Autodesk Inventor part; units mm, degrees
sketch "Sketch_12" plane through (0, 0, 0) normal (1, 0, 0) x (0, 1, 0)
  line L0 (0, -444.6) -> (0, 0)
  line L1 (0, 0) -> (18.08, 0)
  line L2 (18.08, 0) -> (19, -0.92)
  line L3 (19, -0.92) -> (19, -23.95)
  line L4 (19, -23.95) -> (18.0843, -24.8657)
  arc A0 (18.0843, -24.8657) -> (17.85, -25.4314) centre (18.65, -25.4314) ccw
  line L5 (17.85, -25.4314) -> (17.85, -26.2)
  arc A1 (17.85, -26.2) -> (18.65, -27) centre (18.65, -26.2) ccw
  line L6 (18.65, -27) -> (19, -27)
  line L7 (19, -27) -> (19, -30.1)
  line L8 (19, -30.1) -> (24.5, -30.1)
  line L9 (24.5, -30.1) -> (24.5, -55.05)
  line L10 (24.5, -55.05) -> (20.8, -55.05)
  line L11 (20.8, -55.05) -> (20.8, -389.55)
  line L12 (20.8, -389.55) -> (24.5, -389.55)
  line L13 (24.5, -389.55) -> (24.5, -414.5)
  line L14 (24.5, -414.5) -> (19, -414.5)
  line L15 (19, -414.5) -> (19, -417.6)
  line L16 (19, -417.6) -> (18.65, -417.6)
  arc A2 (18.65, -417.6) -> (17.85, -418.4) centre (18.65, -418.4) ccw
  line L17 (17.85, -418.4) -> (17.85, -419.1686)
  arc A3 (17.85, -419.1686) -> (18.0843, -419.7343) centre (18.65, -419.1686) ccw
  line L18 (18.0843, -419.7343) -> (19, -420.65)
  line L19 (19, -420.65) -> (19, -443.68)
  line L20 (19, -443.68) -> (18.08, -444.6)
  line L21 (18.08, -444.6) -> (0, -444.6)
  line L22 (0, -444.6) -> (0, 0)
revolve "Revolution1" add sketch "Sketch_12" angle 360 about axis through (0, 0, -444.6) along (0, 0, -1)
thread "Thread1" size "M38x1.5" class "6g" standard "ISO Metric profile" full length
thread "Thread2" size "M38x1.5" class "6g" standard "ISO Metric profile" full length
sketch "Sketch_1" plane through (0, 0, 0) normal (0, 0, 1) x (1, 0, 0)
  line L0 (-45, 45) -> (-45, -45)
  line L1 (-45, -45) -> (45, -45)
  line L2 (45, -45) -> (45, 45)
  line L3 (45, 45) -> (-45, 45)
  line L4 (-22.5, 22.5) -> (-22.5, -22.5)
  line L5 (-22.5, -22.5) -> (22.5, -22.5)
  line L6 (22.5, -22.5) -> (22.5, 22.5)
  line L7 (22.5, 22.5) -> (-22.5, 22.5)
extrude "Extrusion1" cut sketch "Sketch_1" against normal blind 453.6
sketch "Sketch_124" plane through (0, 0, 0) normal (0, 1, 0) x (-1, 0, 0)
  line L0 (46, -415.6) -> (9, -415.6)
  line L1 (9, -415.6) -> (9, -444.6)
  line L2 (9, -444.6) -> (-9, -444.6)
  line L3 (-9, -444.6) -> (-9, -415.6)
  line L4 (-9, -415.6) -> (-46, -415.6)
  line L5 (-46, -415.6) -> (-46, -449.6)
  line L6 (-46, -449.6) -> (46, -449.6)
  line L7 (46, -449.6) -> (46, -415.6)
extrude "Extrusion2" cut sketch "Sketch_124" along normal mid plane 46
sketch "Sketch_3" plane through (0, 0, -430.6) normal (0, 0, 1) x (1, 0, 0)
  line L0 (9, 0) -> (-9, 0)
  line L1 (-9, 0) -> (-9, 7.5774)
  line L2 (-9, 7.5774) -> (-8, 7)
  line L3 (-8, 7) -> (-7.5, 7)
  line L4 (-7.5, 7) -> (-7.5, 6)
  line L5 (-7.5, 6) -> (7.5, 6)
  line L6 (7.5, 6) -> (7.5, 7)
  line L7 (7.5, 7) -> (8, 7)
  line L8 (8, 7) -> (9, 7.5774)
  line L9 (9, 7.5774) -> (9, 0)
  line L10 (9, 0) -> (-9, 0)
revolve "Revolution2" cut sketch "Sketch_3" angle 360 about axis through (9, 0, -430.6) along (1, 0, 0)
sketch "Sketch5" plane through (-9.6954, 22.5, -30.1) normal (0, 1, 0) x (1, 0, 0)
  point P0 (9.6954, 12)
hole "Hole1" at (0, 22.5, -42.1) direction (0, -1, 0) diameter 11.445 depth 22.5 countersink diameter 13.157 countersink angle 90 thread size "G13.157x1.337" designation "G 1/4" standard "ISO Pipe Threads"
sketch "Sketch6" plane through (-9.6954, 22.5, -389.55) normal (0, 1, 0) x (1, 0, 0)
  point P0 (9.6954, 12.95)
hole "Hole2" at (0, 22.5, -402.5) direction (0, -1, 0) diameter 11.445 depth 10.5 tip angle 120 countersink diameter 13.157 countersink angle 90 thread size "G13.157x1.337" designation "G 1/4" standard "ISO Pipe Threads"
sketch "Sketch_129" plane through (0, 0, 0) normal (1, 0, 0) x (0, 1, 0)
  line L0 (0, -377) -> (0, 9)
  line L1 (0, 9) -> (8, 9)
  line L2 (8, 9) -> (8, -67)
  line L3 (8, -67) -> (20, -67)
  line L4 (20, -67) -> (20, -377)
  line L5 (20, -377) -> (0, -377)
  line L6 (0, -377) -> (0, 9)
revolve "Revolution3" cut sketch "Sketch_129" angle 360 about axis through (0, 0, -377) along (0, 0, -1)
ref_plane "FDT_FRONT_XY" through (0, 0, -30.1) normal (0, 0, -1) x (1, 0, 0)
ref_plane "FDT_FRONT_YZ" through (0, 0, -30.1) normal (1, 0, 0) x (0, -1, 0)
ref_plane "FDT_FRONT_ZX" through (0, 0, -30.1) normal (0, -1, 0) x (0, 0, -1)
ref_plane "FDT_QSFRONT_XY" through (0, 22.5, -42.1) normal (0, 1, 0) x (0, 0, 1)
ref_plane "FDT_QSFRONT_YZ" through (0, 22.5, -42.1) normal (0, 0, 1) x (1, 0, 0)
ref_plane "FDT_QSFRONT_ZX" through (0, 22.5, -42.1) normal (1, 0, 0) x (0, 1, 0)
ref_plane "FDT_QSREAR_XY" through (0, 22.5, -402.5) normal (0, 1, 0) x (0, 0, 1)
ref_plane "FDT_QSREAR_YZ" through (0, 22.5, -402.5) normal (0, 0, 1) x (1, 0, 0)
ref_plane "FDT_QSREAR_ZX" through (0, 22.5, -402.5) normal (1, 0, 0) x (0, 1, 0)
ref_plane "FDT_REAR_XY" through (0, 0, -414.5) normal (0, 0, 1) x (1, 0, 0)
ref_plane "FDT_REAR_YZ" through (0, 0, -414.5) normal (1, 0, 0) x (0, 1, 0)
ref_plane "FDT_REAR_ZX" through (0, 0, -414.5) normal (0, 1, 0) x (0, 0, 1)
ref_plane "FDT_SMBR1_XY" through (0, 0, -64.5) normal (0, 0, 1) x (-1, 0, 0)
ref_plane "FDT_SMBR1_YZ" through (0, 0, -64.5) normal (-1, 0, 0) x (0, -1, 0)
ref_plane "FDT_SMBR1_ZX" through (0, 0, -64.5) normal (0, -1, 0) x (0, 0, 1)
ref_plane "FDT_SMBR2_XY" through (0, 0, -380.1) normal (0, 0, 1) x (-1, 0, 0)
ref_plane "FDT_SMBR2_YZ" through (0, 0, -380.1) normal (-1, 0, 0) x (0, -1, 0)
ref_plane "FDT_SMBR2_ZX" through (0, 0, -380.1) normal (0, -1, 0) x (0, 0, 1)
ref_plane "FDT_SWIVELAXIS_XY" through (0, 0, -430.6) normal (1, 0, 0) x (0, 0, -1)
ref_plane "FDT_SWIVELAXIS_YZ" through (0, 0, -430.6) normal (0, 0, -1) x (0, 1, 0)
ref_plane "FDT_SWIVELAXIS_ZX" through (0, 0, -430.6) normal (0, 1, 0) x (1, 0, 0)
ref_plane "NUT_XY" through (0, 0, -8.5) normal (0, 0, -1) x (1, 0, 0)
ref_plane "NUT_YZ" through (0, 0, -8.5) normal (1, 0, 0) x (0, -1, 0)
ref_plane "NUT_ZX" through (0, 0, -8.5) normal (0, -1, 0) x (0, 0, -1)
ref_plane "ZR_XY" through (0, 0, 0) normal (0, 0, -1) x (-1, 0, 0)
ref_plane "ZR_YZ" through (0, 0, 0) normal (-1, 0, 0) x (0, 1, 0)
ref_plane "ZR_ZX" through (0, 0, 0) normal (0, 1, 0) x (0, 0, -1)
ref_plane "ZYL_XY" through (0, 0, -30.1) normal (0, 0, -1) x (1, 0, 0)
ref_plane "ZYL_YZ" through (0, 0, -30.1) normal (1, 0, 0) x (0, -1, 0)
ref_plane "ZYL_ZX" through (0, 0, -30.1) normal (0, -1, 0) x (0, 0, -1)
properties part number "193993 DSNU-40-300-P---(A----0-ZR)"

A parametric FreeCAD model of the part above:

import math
import FreeCAD as App
import Part
import Sketcher

V = App.Vector


def add_polygon(sketch, points):
    """Adds a closed chain of lines whose ends are joined by coincident constraints."""
    first, n = sketch.GeometryCount, len(points)
    for a, b in zip(points, points[1:] + points[:1]):
        sketch.addGeometry(Part.LineSegment(App.Vector(*a, 0), App.Vector(*b, 0)), False)
    for i in range(n):
        sketch.addConstraint(Sketcher.Constraint("Coincident", first + i, 2, first + (i + 1) % n, 1))

doc = App.newDocument("Part")
params = doc.addObject("Spreadsheet::Sheet", "Params")
for row, (alias, value) in enumerate([
    ("sketch1_radius", "0.8 mm"),
    ("sketch1_width", "5.5 mm"),
    ("sketch1_width2", "3.7 mm"),
    ("sketch1_height", "444.6 mm"),
    ("sketch1_height2", "3.1 mm"),
    ("revolution_angle", "360 deg"),
    ("sketch2_width", "90 mm"),
    ("sketch2_width2", "45 mm"),
    ("pocket1_length", "453.6 mm"),
    ("sketch3_width", "37 mm"),
    ("sketch3_width2", "18 mm"),
    ("sketch3_height", "34 mm"),
    ("sketch3_height2", "29 mm"),
    ("pocket2_length", "46 mm"),
    ("sketch4_width", "18 mm"),
    ("sketch4_width2", "15 mm"),
    ("sketch4_height", "1 mm"),
    ("sketch4_width3", "0.5 mm"),
    ("groove_angle", "360 deg"),
    ("hole_diameter", "11.445 mm"),
    ("hole_depth", "22.5 mm"),
    ("hole_csink_diameter", "13.157 mm"),
    ("hole2_diameter", "11.445 mm"),
    ("hole2_depth", "10.5 mm"),
    ("hole2_csink_diameter", "13.157 mm"),
    ("sketch7_width", "20 mm"),
    ("sketch7_width2", "12 mm"),
    ("sketch7_height", "386 mm"),
    ("sketch7_height2", "310 mm"),
    ("groove2_angle", "360 deg"),
], start=1):
    params.set(f"A{row}", alias)
    params.set(f"B{row}", "=" + value)
    params.setAlias(f"B{row}", alias)

body = doc.addObject("PartDesign::Body", "Body")

sketch1 = body.newObject("Sketcher::SketchObject", "Sketch")
sketch1.AttachmentSupport = (doc.getObject("YZ_Plane"), [""])
sketch1.MapMode = "FlatFace"
sketch1.addGeometry([
    Part.LineSegment(V(0, 0, 0), V(0, -444.6, 0)),
    Part.LineSegment(V(0, -444.6, 0), V(18.08, -444.6, 0)),
    Part.LineSegment(V(18.08, -444.6, 0), V(19, -443.68, 0)),
    Part.LineSegment(V(19, -443.68, 0), V(19, -420.65, 0)),
    Part.LineSegment(V(19, -420.65, 0), V(18.08, -419.73, 0)),
    Part.ArcOfCircle(Part.Circle(V(18.65, -419.17, 0), V(0, 0, 1), 0.8), math.radians(180), math.radians(225)),
    Part.LineSegment(V(17.85, -419.17, 0), V(17.85, -418.4, 0)),
    Part.ArcOfCircle(Part.Circle(V(18.65, -418.4, 0), V(0, 0, 1), 0.8), math.radians(90), math.radians(180)),
    Part.LineSegment(V(18.65, -417.6, 0), V(19, -417.6, 0)),
    Part.LineSegment(V(19, -417.6, 0), V(19, -414.5, 0)),
    Part.LineSegment(V(19, -414.5, 0), V(24.5, -414.5, 0)),
    Part.LineSegment(V(24.5, -414.5, 0), V(24.5, -389.55, 0)),
    Part.LineSegment(V(24.5, -389.55, 0), V(20.8, -389.55, 0)),
    Part.LineSegment(V(20.8, -389.55, 0), V(20.8, -55.05, 0)),
    Part.LineSegment(V(20.8, -55.05, 0), V(24.5, -55.05, 0)),
    Part.LineSegment(V(24.5, -55.05, 0), V(24.5, -30.1, 0)),
    Part.LineSegment(V(24.5, -30.1, 0), V(19, -30.1, 0)),
    Part.LineSegment(V(19, -30.1, 0), V(19, -27, 0)),
    Part.LineSegment(V(19, -27, 0), V(18.65, -27, 0)),
    Part.ArcOfCircle(Part.Circle(V(18.65, -26.2, 0), V(0, 0, 1), 0.8), math.radians(180), math.radians(270)),
    Part.LineSegment(V(17.85, -26.2, 0), V(17.85, -25.43, 0)),
    Part.ArcOfCircle(Part.Circle(V(18.65, -25.43, 0), V(0, 0, 1), 0.8), math.radians(135), math.radians(180)),
    Part.LineSegment(V(18.08, -24.87, 0), V(19, -23.95, 0)),
    Part.LineSegment(V(19, -23.95, 0), V(19, -0.92, 0)),
    Part.LineSegment(V(19, -0.92, 0), V(18.08, 0, 0)),
    Part.LineSegment(V(18.08, 0, 0), V(0, 0, 0)),
], False)
sketch1.addConstraint([
    Sketcher.Constraint("Coincident", 0, 2, 1, 1),
    Sketcher.Constraint("Coincident", 1, 2, 2, 1),
    Sketcher.Constraint("Coincident", 2, 2, 3, 1),
    Sketcher.Constraint("Coincident", 3, 2, 4, 1),
    Sketcher.Constraint("Tangent", 4, 2, 5, 2),
    Sketcher.Constraint("Tangent", 5, 1, 6, 1),
    Sketcher.Constraint("Tangent", 6, 2, 7, 2),
    Sketcher.Constraint("Tangent", 7, 1, 8, 1),
    Sketcher.Constraint("Coincident", 8, 2, 9, 1),
    Sketcher.Constraint("Coincident", 9, 2, 10, 1),
    Sketcher.Constraint("Coincident", 10, 2, 11, 1),
    Sketcher.Constraint("Coincident", 11, 2, 12, 1),
    Sketcher.Constraint("Coincident", 12, 2, 13, 1),
    Sketcher.Constraint("Coincident", 13, 2, 14, 1),
    Sketcher.Constraint("Coincident", 14, 2, 15, 1),
    Sketcher.Constraint("Coincident", 15, 2, 16, 1),
    Sketcher.Constraint("Coincident", 16, 2, 17, 1),
    Sketcher.Constraint("Coincident", 17, 2, 18, 1),
    Sketcher.Constraint("Tangent", 18, 2, 19, 2),
    Sketcher.Constraint("Tangent", 19, 1, 20, 1),
    Sketcher.Constraint("Tangent", 20, 2, 21, 2),
    Sketcher.Constraint("Tangent", 21, 1, 22, 1),
    Sketcher.Constraint("Coincident", 22, 2, 23, 1),
    Sketcher.Constraint("Coincident", 23, 2, 24, 1),
    Sketcher.Constraint("Coincident", 24, 2, 25, 1),
    Sketcher.Constraint("Coincident", 25, 2, 0, 1),
    Sketcher.Constraint("Vertical", 0),
    Sketcher.Constraint("Horizontal", 1),
    Sketcher.Constraint("Vertical", 3),
    Sketcher.Constraint("Vertical", 6),
    Sketcher.Constraint("Horizontal", 8),
    Sketcher.Constraint("Vertical", 9),
    Sketcher.Constraint("Horizontal", 10),
    Sketcher.Constraint("Vertical", 11),
    Sketcher.Constraint("Horizontal", 12),
    Sketcher.Constraint("Vertical", 13),
    Sketcher.Constraint("Horizontal", 14),
    Sketcher.Constraint("Vertical", 15),
    Sketcher.Constraint("Horizontal", 16),
    Sketcher.Constraint("Vertical", 17),
    Sketcher.Constraint("Horizontal", 18),
    Sketcher.Constraint("Vertical", 20),
    Sketcher.Constraint("Vertical", 23),
    Sketcher.Constraint("Horizontal", 25),
    Sketcher.Constraint("Coincident", 25, 2, -1, 1),
    Sketcher.Constraint("Equal", 5, 7),
    Sketcher.Constraint("Equal", 7, 19),
    Sketcher.Constraint("Equal", 19, 21),
    Sketcher.Constraint("Perpendicular", 2, 4),
    Sketcher.Constraint("Perpendicular", 4, 22),
    Sketcher.Constraint("Perpendicular", 22, 24),
    Sketcher.Constraint("Vertical", 7, 3, 19, 3),
    Sketcher.Constraint("Vertical", 3, 2, 8, 2),
    Sketcher.Constraint("Vertical", 11, 2, 14, 2),
    Sketcher.Constraint("Vertical", 9, 2, 16, 2),
    Sketcher.Constraint("Vertical", 4, 2, 21, 1),
    Sketcher.Constraint("Vertical", 17, 2, 22, 2),
    Sketcher.Constraint("Vertical", 1, 2, 24, 2),
    Sketcher.Constraint("Equal", 11, 15),
    Sketcher.Constraint("Equal", 9, 17),
    Sketcher.Constraint("Equal", 6, 20),
    Sketcher.Constraint("Equal", 3, 23),
    Sketcher.Constraint("Radius", 5, 0.8),
    Sketcher.Constraint("DistanceX", 10, 1, 10, 2, 5.5),
    Sketcher.Constraint("DistanceX", 12, 2, 12, 1, 3.7),
    Sketcher.Constraint("DistanceY", 0, 2, 0, 1, 444.6),
    Sketcher.Constraint("DistanceY", 9, 1, 9, 2, 3.1),
    Sketcher.Constraint("DistanceY", 13, 1, 13, 2, 334.5),
    Sketcher.Constraint("DistanceX", -1, 1, 2, 2, 19.0),
    Sketcher.Constraint("DistanceY", 17, 2, -1, 1, 27.0),
    Sketcher.Constraint("DistanceX", 1, 1, 1, 2, 18.08),
    Sketcher.Constraint("DistanceX", 8, 1, 8, 2, 0.35),
    Sketcher.Constraint("DistanceY", 3, 1, 3, 2, 23.03),
])
sketch1.setExpression("Constraints[62]", "Params.sketch1_radius")
sketch1.setExpression("Constraints[63]", "Params.sketch1_width")
sketch1.setExpression("Constraints[64]", "Params.sketch1_width2")
sketch1.setExpression("Constraints[65]", "Params.sketch1_height")
sketch1.setExpression("Constraints[66]", "Params.sketch1_height2")
revolution = body.newObject("PartDesign::Revolution", "Revolution")
revolution.Profile = sketch1
revolution.ReferenceAxis = (sketch1, ["V_Axis"])
revolution.setExpression("Angle", "Params.revolution_angle")

sketch2 = body.newObject("Sketcher::SketchObject", "Sketch001")
sketch2.AttachmentSupport = (doc.getObject("XY_Plane"), [""])
sketch2.MapMode = "FlatFace"
add_polygon(sketch2, [(45, 45), (-45, 45), (-45, -45), (45, -45)])
add_polygon(sketch2, [(-22, -22), (-22, 22), (22, 22), (22, -22)])
sketch2.addConstraint([
    Sketcher.Constraint("Horizontal", 0),
    Sketcher.Constraint("Vertical", 1),
    Sketcher.Constraint("Horizontal", 2),
    Sketcher.Constraint("Vertical", 3),
    Sketcher.Constraint("Vertical", 4),
    Sketcher.Constraint("Horizontal", 5),
    Sketcher.Constraint("Vertical", 6),
    Sketcher.Constraint("Horizontal", 7),
    Sketcher.Constraint("Symmetric", 0, 2, 2, 2, -1, 1),
    Sketcher.Constraint("Symmetric", 4, 2, 6, 2, -1, 1),
    Sketcher.Constraint("Equal", 2, 1),
    Sketcher.Constraint("Equal", 7, 4),
    Sketcher.Constraint("DistanceX", 0, 2, 0, 1, 90.0),
    Sketcher.Constraint("DistanceX", 5, 1, 5, 2, 45.0),
])
sketch2.setExpression("Constraints[20]", "Params.sketch2_width")
sketch2.setExpression("Constraints[21]", "Params.sketch2_width2")
pocket1 = body.newObject("PartDesign::Pocket", "Pocket")
pocket1.Profile = sketch2
pocket1.setExpression("Length", "Params.pocket1_length")

sketch3 = body.newObject("Sketcher::SketchObject", "Sketch002")
sketch3.AttachmentSupport = (doc.getObject("XZ_Plane"), [""])
sketch3.MapMode = "FlatFace"
add_polygon(sketch3, [(-46, -450), (-46, -416), (-9, -416), (-9, -445), (9, -445), (9, -416), (46, -416), (46, -450)])
sketch3.addConstraint([
    Sketcher.Constraint("Vertical", 0),
    Sketcher.Constraint("Horizontal", 1),
    Sketcher.Constraint("Vertical", 2),
    Sketcher.Constraint("Horizontal", 3),
    Sketcher.Constraint("Vertical", 4),
    Sketcher.Constraint("Horizontal", 5),
    Sketcher.Constraint("Vertical", 6),
    Sketcher.Constraint("Horizontal", 7),
    Sketcher.Constraint("Symmetric", 1, 2, 4, 2, -2),
    Sketcher.Constraint("Equal", 1, 5),
    Sketcher.Constraint("DistanceX", 1, 1, 1, 2, 37.0),
    Sketcher.Constraint("DistanceX", 3, 1, 3, 2, 18.0),
    Sketcher.Constraint("DistanceY", 0, 1, 0, 2, 34.0),
    Sketcher.Constraint("DistanceY", 2, 2, 2, 1, 29.0),
    Sketcher.Constraint("DistanceY", 0, 2, -1, 1, 415.6),
])
sketch3.setExpression("Constraints[18]", "Params.sketch3_width")
sketch3.setExpression("Constraints[19]", "Params.sketch3_width2")
sketch3.setExpression("Constraints[20]", "Params.sketch3_height")
sketch3.setExpression("Constraints[21]", "Params.sketch3_height2")
pocket2 = body.newObject("PartDesign::Pocket", "Pocket001")
pocket2.Profile = sketch3
pocket2.setExpression("Length", "Params.pocket2_length")
pocket2.Midplane = True

sketch4 = body.newObject("Sketcher::SketchObject", "Sketch003")
sketch4.AttachmentSupport = (doc.getObject("XY_Plane"), [""])
sketch4.MapMode = "FlatFace"
sketch4.AttachmentOffset = App.Placement(V(0, 0, -430.6), App.Rotation())
add_polygon(sketch4, [(-9, 0), (9, 0), (9, 7.6), (8, 7), (7.5, 7), (7.5, 6), (-7.5, 6), (-7.5, 7), (-8, 7), (-9, 7.6)])
sketch4.addConstraint([
    Sketcher.Constraint("Horizontal", 0),
    Sketcher.Constraint("Vertical", 1),
    Sketcher.Constraint("Horizontal", 3),
    Sketcher.Constraint("Vertical", 4),
    Sketcher.Constraint("Horizontal", 5),
    Sketcher.Constraint("Vertical", 6),
    Sketcher.Constraint("Horizontal", 7),
    Sketcher.Constraint("Vertical", 9),
    Sketcher.Constraint("Symmetric", 0, 2, 9, 2, -1, 1),
    Sketcher.Constraint("Symmetric", 3, 2, 6, 2, -2),
    Sketcher.Constraint("Horizontal", 1, 2, 8, 2),
    Sketcher.Constraint("Equal", 3, 7),
    Sketcher.Constraint("DistanceX", 0, 1, 0, 2, 18.0),
    Sketcher.Constraint("DistanceX", 5, 2, 5, 1, 15.0),
    Sketcher.Constraint("DistanceY", 4, 2, 4, 1, 1.0),
    Sketcher.Constraint("DistanceX", 3, 2, 3, 1, 0.5),
    Sketcher.Constraint("DistanceY", -1, 1, 2, 2, 7.0),
    Sketcher.Constraint("DistanceY", 1, 1, 1, 2, 7.5774),
])
sketch4.setExpression("Constraints[22]", "Params.sketch4_width")
sketch4.setExpression("Constraints[23]", "Params.sketch4_width2")
sketch4.setExpression("Constraints[24]", "Params.sketch4_height")
sketch4.setExpression("Constraints[25]", "Params.sketch4_width3")
groove = body.newObject("PartDesign::Groove", "Groove")
groove.Profile = sketch4
groove.ReferenceAxis = (sketch4, ["H_Axis"])
groove.setExpression("Angle", "Params.groove_angle")

sketch5 = body.newObject("Sketcher::SketchObject", "Sketch004")
sketch5.AttachmentSupport = (doc.getObject("XZ_Plane"), [""])
sketch5.MapMode = "FlatFace"
sketch5.AttachmentOffset = App.Placement(V(0, 0, -22.5), App.Rotation())
sketch5.addGeometry(Part.Circle(V(0, -42, 0), V(0, 0, 1), 6), False)
sketch5.addConstraint([
    Sketcher.Constraint("PointOnObject", 0, 3, -2),
    Sketcher.Constraint("Diameter", 0, 11.445),
    Sketcher.Constraint("DistanceY", 0, 3, -1, 1, 42.1),
])
doc.recompute()
hole = body.newObject("PartDesign::Hole", "Hole")
hole.Profile = sketch5
hole.ThreadType = "None"
hole.setExpression("Diameter", "Params.hole_diameter")
hole.DepthType = "Dimension"
hole.setExpression("Depth", "Params.hole_depth")
hole.DrillPoint = "Flat"
hole.HoleCutType = "Countersink"
hole.setExpression("HoleCutDiameter", "Params.hole_csink_diameter")
hole.HoleCutCountersinkAngle = 90
hole.Reversed = True

sketch6 = body.newObject("Sketcher::SketchObject", "Sketch005")
sketch6.AttachmentSupport = (doc.getObject("XZ_Plane"), [""])
sketch6.MapMode = "FlatFace"
sketch6.AttachmentOffset = App.Placement(V(0, 0, -22.5), App.Rotation())
sketch6.addGeometry(Part.Circle(V(0, -402, 0), V(0, 0, 1), 6), False)
sketch6.addConstraint([
    Sketcher.Constraint("PointOnObject", 0, 3, -2),
    Sketcher.Constraint("Diameter", 0, 11.445),
    Sketcher.Constraint("DistanceY", 0, 3, -1, 1, 402.5),
])
doc.recompute()
hole2 = body.newObject("PartDesign::Hole", "Hole001")
hole2.Profile = sketch6
hole2.ThreadType = "None"
hole2.setExpression("Diameter", "Params.hole2_diameter")
hole2.DepthType = "Dimension"
hole2.setExpression("Depth", "Params.hole2_depth")
hole2.DrillPoint = "Angled"
hole2.DrillPointAngle = 120
hole2.HoleCutType = "Countersink"
hole2.setExpression("HoleCutDiameter", "Params.hole2_csink_diameter")
hole2.HoleCutCountersinkAngle = 90
hole2.Reversed = True

sketch7 = body.newObject("Sketcher::SketchObject", "Sketch006")
sketch7.AttachmentSupport = (doc.getObject("YZ_Plane"), [""])
sketch7.MapMode = "FlatFace"
add_polygon(sketch7, [(0, 9), (0, -377), (20, -377), (20, -67), (8, -67), (8, 9)])
sketch7.addConstraint([
    Sketcher.Constraint("Vertical", 0),
    Sketcher.Constraint("Horizontal", 1),
    Sketcher.Constraint("Vertical", 2),
    Sketcher.Constraint("Horizontal", 3),
    Sketcher.Constraint("Vertical", 4),
    Sketcher.Constraint("Horizontal", 5),
    Sketcher.Constraint("PointOnObject", 0, 2, -2),
    Sketcher.Constraint("DistanceX", 1, 1, 1, 2, 20.0),
    Sketcher.Constraint("DistanceX", 3, 2, 3, 1, 12.0),
    Sketcher.Constraint("DistanceY", 0, 2, 0, 1, 386.0),
    Sketcher.Constraint("DistanceY", 2, 1, 2, 2, 310.0),
    Sketcher.Constraint("DistanceY", 0, 2, -1, 1, 377.0),
])
sketch7.setExpression("Constraints[13]", "Params.sketch7_width")
sketch7.setExpression("Constraints[14]", "Params.sketch7_width2")
sketch7.setExpression("Constraints[15]", "Params.sketch7_height")
sketch7.setExpression("Constraints[16]", "Params.sketch7_height2")
groove2 = body.newObject("PartDesign::Groove", "Groove001")
groove2.Profile = sketch7
groove2.ReferenceAxis = (sketch7, ["V_Axis"])
groove2.setExpression("Angle", "Params.groove2_angle")

doc.recompute()
